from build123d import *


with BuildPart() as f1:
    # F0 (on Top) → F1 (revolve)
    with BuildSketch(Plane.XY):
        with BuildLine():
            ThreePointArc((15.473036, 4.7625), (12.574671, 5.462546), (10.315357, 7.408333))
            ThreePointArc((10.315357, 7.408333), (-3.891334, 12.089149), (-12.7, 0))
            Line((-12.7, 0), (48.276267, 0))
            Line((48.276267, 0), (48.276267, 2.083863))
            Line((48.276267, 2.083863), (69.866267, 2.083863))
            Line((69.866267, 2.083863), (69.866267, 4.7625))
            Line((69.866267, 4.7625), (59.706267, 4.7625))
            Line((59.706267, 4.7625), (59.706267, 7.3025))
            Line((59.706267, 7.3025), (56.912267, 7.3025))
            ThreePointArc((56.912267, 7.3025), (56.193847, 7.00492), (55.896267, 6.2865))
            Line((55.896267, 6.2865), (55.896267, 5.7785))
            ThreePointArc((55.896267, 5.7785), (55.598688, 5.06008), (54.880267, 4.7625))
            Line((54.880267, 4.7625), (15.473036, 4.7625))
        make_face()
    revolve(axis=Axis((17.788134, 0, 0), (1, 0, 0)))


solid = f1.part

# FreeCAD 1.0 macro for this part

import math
import FreeCAD as App
import Part
import Sketcher

V = App.Vector
Q = App.Units.Quantity

doc = App.newDocument("Part")
body = doc.addObject("PartDesign::Body", "Body")

# Sketch on XY plane
sketch1 = body.newObject("Sketcher::SketchObject", "Sketch")
sketch1.AttachmentSupport = (doc.getObject("XY_Plane"), [""])
sketch1.MapMode = "FlatFace"
sketch1.addGeometry([
    Part.ArcOfCircle(Part.Circle(V(15.5, 11.1, 0), V(0, 0, 1), 6.4), math.radians(-144), math.radians(-90)),  # 0
    Part.ArcOfCircle(Part.Circle(V(0, 0, 0), V(0, 0, 1), 12.7), math.radians(36), math.radians(180)),  # 1
    Part.LineSegment(V(-12.7, 0, 0), V(48.3, 0, 0)),  # 2
    Part.LineSegment(V(48.3, 0, 0), V(48.3, 2.1, 0)),  # 3
    Part.LineSegment(V(48.3, 2.1, 0), V(69.9, 2.1, 0)),  # 4
    Part.LineSegment(V(69.9, 2.1, 0), V(69.9, 4.8, 0)),  # 5
    Part.LineSegment(V(69.9, 4.8, 0), V(59.7, 4.8, 0)),  # 6
    Part.LineSegment(V(59.7, 4.8, 0), V(59.7, 7.3, 0)),  # 7
    Part.LineSegment(V(59.7, 7.3, 0), V(56.9, 7.3, 0)),  # 8
    Part.ArcOfCircle(Part.Circle(V(56.9, 6.3, 0), V(0, 0, 1), 1), math.radians(90), math.radians(180)),  # 9
    Part.LineSegment(V(55.9, 6.3, 0), V(55.9, 5.8, 0)),  # 10
    Part.ArcOfCircle(Part.Circle(V(54.9, 5.8, 0), V(0, 0, 1), 1), math.radians(-90), math.radians(0)),  # 11
    Part.LineSegment(V(54.9, 4.8, 0), V(15.5, 4.8, 0)),  # 12
], False)
sketch1.addConstraint([
    Sketcher.Constraint("Tangent", 0, 1, 1, 1),
    Sketcher.Constraint("Coincident", 1, 2, 2, 1),
    Sketcher.Constraint("Coincident", 2, 2, 3, 1),
    Sketcher.Constraint("Coincident", 3, 2, 4, 1),
    Sketcher.Constraint("Coincident", 4, 2, 5, 1),
    Sketcher.Constraint("Coincident", 5, 2, 6, 1),
    Sketcher.Constraint("Coincident", 6, 2, 7, 1),
    Sketcher.Constraint("Coincident", 7, 2, 8, 1),
    Sketcher.Constraint("Tangent", 8, 2, 9, 1),
    Sketcher.Constraint("Tangent", 9, 2, 10, 1),
    Sketcher.Constraint("Tangent", 10, 2, 11, 2),
    Sketcher.Constraint("Tangent", 11, 1, 12, 1),
    Sketcher.Constraint("Tangent", 12, 2, 0, 2),
    Sketcher.Constraint("Horizontal", 2),
    Sketcher.Constraint("Vertical", 3),
    Sketcher.Constraint("Horizontal", 4),
    Sketcher.Constraint("Vertical", 5),
    Sketcher.Constraint("Horizontal", 6),
    Sketcher.Constraint("Vertical", 7),
    Sketcher.Constraint("Horizontal", 8),
    Sketcher.Constraint("Vertical", 10),
    Sketcher.Constraint("Horizontal", 12),
    Sketcher.Constraint("Coincident", 1, 3, -1, 1),
    Sketcher.Constraint("Equal", 9, 11),
    Sketcher.Constraint("PointOnObject", 1, 2, -1),
    Sketcher.Constraint("Horizontal", 6, 2, 11, 1),
    Sketcher.Constraint("Radius", 1, Q("0.5 in")),
    Sketcher.Constraint("Radius", 0, Q("0.2500001 in")),
    Sketcher.Constraint("Radius", 9, Q("0.0400001 in")),
    Sketcher.Constraint("DistanceX", 6, 2, 6, 1, Q("0.4 in")),
    Sketcher.Constraint("DistanceY", 7, 1, 7, 2, Q("0.1 in")),
    Sketcher.Constraint("DistanceX", 4, 1, 4, 2, Q("0.85 in")),
    Sketcher.Constraint("DistanceX", 8, 2, 8, 1, Q("0.11 in")),
    Sketcher.Constraint("DistanceY", -1, 1, 0, 3, Q("0.4375001 in")),
    Sketcher.Constraint("DistanceX", 12, 2, 12, 1, Q("39.407231 mm")),
    Sketcher.Constraint("DistanceY", 3, 1, 3, 2, Q("2.083863 mm")),
])
revolution = body.newObject("PartDesign::Revolution", "Revolution")
revolution.Profile = sketch1
revolution.ReferenceAxis = (sketch1, ["H_Axis"])
revolution.Angle = 360

doc.recompute()
